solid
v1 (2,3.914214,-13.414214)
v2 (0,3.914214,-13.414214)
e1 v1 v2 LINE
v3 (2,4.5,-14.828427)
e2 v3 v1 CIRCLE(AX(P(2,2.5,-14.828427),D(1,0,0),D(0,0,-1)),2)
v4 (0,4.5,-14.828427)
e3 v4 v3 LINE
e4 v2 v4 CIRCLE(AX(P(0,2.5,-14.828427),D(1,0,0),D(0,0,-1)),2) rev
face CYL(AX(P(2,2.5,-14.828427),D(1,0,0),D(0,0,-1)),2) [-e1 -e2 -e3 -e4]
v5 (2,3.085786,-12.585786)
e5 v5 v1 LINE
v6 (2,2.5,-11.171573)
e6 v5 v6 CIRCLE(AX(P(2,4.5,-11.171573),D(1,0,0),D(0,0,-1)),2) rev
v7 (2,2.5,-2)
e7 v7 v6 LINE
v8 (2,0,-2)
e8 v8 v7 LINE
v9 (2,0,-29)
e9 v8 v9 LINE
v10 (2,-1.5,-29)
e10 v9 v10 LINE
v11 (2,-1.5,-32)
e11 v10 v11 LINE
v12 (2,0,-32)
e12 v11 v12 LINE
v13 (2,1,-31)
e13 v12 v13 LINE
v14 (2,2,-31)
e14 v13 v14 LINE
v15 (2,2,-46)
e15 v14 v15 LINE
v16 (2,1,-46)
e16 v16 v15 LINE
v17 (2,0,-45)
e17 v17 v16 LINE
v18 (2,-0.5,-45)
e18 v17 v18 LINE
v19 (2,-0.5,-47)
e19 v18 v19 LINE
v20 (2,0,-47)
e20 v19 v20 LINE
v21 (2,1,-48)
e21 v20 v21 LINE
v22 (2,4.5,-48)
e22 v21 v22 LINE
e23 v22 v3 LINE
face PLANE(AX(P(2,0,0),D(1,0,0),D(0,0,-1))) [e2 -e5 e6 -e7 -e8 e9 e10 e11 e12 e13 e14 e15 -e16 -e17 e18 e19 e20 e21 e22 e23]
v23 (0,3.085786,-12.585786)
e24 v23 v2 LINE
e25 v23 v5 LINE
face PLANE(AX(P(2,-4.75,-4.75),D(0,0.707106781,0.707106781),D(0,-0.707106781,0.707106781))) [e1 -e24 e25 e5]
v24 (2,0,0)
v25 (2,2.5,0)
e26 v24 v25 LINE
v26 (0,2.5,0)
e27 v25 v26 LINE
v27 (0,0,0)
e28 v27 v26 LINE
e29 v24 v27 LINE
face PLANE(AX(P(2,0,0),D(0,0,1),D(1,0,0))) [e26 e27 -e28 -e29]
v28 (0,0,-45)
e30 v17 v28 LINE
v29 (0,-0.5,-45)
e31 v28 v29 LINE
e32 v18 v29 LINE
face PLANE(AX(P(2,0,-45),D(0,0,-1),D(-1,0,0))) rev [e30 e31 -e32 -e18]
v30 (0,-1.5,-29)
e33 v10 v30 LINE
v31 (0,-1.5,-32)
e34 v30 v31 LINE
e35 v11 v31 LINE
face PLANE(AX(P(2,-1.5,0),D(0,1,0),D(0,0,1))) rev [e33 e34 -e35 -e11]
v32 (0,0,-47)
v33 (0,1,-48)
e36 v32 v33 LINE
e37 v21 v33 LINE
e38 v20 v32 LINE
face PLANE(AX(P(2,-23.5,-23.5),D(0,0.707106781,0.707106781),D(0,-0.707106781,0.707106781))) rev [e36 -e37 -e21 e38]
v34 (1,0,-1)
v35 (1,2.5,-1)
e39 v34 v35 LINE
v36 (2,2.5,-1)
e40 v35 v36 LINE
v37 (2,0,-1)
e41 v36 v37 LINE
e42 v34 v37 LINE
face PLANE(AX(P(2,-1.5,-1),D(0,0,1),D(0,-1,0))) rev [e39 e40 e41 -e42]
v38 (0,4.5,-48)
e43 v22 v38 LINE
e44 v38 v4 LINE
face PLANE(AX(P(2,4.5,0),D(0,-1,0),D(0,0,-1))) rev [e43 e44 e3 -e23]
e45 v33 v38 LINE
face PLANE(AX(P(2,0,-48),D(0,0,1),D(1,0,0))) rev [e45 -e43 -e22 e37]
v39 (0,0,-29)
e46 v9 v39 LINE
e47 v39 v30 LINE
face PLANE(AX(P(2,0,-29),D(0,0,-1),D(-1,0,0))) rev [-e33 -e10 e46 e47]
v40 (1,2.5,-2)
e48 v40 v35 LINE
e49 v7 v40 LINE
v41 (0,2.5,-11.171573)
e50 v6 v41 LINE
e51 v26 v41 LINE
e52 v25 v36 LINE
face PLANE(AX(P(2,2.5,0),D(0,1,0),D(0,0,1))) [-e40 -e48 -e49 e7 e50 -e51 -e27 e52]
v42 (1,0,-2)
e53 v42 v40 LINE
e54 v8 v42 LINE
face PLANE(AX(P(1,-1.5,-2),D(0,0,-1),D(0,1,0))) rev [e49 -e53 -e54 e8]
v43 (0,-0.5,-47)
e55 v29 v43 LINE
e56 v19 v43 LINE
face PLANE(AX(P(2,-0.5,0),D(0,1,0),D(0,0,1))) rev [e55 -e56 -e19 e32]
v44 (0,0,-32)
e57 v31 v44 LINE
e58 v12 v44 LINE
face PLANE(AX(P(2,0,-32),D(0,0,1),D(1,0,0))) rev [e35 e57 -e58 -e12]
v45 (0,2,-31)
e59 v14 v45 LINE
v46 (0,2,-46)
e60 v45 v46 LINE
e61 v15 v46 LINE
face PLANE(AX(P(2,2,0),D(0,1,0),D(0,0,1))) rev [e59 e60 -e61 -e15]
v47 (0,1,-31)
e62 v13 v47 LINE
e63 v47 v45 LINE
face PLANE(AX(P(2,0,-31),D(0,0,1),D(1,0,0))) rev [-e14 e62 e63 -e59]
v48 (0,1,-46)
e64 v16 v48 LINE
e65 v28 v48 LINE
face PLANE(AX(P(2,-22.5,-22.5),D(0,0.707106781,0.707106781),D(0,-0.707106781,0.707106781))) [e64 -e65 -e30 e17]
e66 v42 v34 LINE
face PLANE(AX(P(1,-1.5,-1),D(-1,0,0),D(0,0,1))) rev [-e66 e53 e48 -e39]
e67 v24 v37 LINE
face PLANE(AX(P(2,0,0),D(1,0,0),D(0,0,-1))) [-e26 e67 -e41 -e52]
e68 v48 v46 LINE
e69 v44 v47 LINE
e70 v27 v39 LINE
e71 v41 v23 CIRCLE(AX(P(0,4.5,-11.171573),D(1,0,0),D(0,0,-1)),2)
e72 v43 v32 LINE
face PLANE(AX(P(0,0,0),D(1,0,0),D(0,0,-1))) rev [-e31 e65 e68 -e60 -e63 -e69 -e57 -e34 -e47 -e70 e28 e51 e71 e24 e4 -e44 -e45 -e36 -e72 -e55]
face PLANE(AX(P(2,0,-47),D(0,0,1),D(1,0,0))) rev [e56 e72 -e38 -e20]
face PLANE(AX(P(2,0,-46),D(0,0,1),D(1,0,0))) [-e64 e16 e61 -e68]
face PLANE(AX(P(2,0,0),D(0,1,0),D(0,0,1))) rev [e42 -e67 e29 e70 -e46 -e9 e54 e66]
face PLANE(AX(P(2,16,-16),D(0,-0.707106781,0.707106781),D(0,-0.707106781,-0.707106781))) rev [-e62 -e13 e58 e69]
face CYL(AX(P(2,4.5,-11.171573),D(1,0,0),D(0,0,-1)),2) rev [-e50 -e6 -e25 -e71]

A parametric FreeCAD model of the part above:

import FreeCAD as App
import Part
import Sketcher


def edges_at(feature, points):
    """Names of the edges that pass closest to the given points."""
    edges = feature.Shape.Edges
    near = lambda p: min(range(len(edges)), key=lambda i: edges[i].distToShape(Part.Vertex(*p))[0])
    return sorted({f"Edge{near(p) + 1}" for p in points})

doc = App.newDocument("Part")
body = doc.addObject("PartDesign::Body", "Body")

# Sketch on YZ plane
sketch1 = body.newObject("Sketcher::SketchObject", "Sketch")
sketch1.AttachmentSupport = (doc.getObject("YZ_Plane"), [""])
sketch1.MapMode = "FlatFace"
sketch1.addGeometry([
    Part.LineSegment(App.Vector(1, -48, 0), App.Vector(4.5, -48, 0)),  # 0
    Part.LineSegment(App.Vector(4.5, -48, 0), App.Vector(4.5, -14, 0)),  # 1
    Part.LineSegment(App.Vector(4.5, -14, 0), App.Vector(2.5, -12, 0)),  # 2
    Part.LineSegment(App.Vector(2.5, -12, 0), App.Vector(2.5, 0, 0)),  # 3
    Part.LineSegment(App.Vector(2.5, 0, 0), App.Vector(0, 0, 0)),  # 4
    Part.LineSegment(App.Vector(0, 0, 0), App.Vector(0, -29, 0)),  # 5
    Part.LineSegment(App.Vector(0, -29, 0), App.Vector(-1.5, -29, 0)),  # 6
    Part.LineSegment(App.Vector(-1.5, -29, 0), App.Vector(-1.5, -32, 0)),  # 7
    Part.LineSegment(App.Vector(-1.5, -32, 0), App.Vector(0, -32, 0)),  # 8
    Part.LineSegment(App.Vector(0, -32, 0), App.Vector(1, -31, 0)),  # 9
    Part.LineSegment(App.Vector(1, -31, 0), App.Vector(2, -31, 0)),  # 10
    Part.LineSegment(App.Vector(2, -31, 0), App.Vector(2, -46, 0)),  # 11
    Part.LineSegment(App.Vector(2, -46, 0), App.Vector(1, -46, 0)),  # 12
    Part.LineSegment(App.Vector(1, -46, 0), App.Vector(0, -45, 0)),  # 13
    Part.LineSegment(App.Vector(0, -45, 0), App.Vector(-0.5, -45, 0)),  # 14
    Part.LineSegment(App.Vector(-0.5, -45, 0), App.Vector(-0.5, -47, 0)),  # 15
    Part.LineSegment(App.Vector(-0.5, -47, 0), App.Vector(0, -47, 0)),  # 16
    Part.LineSegment(App.Vector(0, -47, 0), App.Vector(1, -48, 0)),  # 17
], False)
sketch1.addConstraint([
    Sketcher.Constraint("Coincident", 0, 2, 1, 1),
    Sketcher.Constraint("Coincident", 1, 2, 2, 1),
    Sketcher.Constraint("Coincident", 2, 2, 3, 1),
    Sketcher.Constraint("Coincident", 3, 2, 4, 1),
    Sketcher.Constraint("Coincident", 4, 2, 5, 1),
    Sketcher.Constraint("Coincident", 5, 2, 6, 1),
    Sketcher.Constraint("Coincident", 6, 2, 7, 1),
    Sketcher.Constraint("Coincident", 7, 2, 8, 1),
    Sketcher.Constraint("Coincident", 8, 2, 9, 1),
    Sketcher.Constraint("Coincident", 9, 2, 10, 1),
    Sketcher.Constraint("Coincident", 10, 2, 11, 1),
    Sketcher.Constraint("Coincident", 11, 2, 12, 1),
    Sketcher.Constraint("Coincident", 12, 2, 13, 1),
    Sketcher.Constraint("Coincident", 13, 2, 14, 1),
    Sketcher.Constraint("Coincident", 14, 2, 15, 1),
    Sketcher.Constraint("Coincident", 15, 2, 16, 1),
    Sketcher.Constraint("Coincident", 16, 2, 17, 1),
    Sketcher.Constraint("Coincident", 17, 2, 0, 1),
    Sketcher.Constraint("Horizontal", 0),
    Sketcher.Constraint("Vertical", 1),
    Sketcher.Constraint("Vertical", 3),
    Sketcher.Constraint("Horizontal", 4),
    Sketcher.Constraint("Vertical", 5),
    Sketcher.Constraint("Horizontal", 6),
    Sketcher.Constraint("Vertical", 7),
    Sketcher.Constraint("Horizontal", 8),
    Sketcher.Constraint("Horizontal", 10),
    Sketcher.Constraint("Vertical", 11),
    Sketcher.Constraint("Horizontal", 12),
    Sketcher.Constraint("Horizontal", 14),
    Sketcher.Constraint("Vertical", 15),
    Sketcher.Constraint("Horizontal", 16),
    Sketcher.Constraint("Coincident", 4, 2, -1, 1),
    Sketcher.Constraint("PointOnObject", 8, 2, -2),
    Sketcher.Constraint("PointOnObject", 13, 2, -2),
    Sketcher.Constraint("PointOnObject", 16, 2, -2),
    Sketcher.Constraint("Perpendicular", 2, 9),
    Sketcher.Constraint("Perpendicular", 9, 13),
    Sketcher.Constraint("Parallel", 13, 17),
    Sketcher.Constraint("Vertical", 9, 2, 12, 2),
    Sketcher.Constraint("Vertical", 12, 2, 17, 2),
    Sketcher.Constraint("Equal", 9, 13),
    Sketcher.Constraint("DistanceX", 10, 1, 10, 2, 1.0),
    Sketcher.Constraint("DistanceY", 1, 1, 1, 2, 34.0),
    Sketcher.Constraint("DistanceY", 3, 1, 3, 2, 12.0),
    Sketcher.Constraint("DistanceY", 5, 2, 5, 1, 29.0),
    Sketcher.Constraint("DistanceY", 7, 2, 7, 1, 3.0),
    Sketcher.Constraint("DistanceY", 11, 2, 11, 1, 15.0),
    Sketcher.Constraint("DistanceY", 15, 2, 15, 1, 2.0),
    Sketcher.Constraint("DistanceX", 0, 1, 0, 2, 3.5),
    Sketcher.Constraint("DistanceX", 4, 2, 4, 1, 2.5),
    Sketcher.Constraint("DistanceX", 6, 2, 6, 1, 1.5),
    Sketcher.Constraint("DistanceX", 14, 2, 14, 1, 0.5),
])
pad1 = body.newObject("PartDesign::Pad", "Pad")
pad1.Profile = sketch1
pad1.Length = 2
doc.recompute()

fillet = body.newObject("PartDesign::Fillet", "Fillet")
fillet.Base = (pad1, edges_at(pad1, [(1, 2.5, -12), (1, 4.5, -14)]))
fillet.Radius = 2

# Sketch on XZ plane
sketch2 = body.newObject("Sketcher::SketchObject", "Sketch001")
sketch2.AttachmentSupport = (doc.getObject("XZ_Plane"), [""])
sketch2.MapMode = "FlatFace"
sketch2.AttachmentOffset = App.Placement(App.Vector(0, 0, -2.5), App.Rotation())
sketch2.addGeometry([
    Part.LineSegment(App.Vector(1, -2, 0), App.Vector(1, -1, 0)),
    Part.LineSegment(App.Vector(1, -1, 0), App.Vector(2, -1, 0)),
    Part.LineSegment(App.Vector(2, -1, 0), App.Vector(2, -2, 0)),
    Part.LineSegment(App.Vector(2, -2, 0), App.Vector(1, -2, 0)),
], False)
sketch2.addConstraint([
    Sketcher.Constraint("Coincident", 0, 2, 1, 1),
    Sketcher.Constraint("Coincident", 1, 2, 2, 1),
    Sketcher.Constraint("Coincident", 2, 2, 3, 1),
    Sketcher.Constraint("Coincident", 3, 2, 0, 1),
    Sketcher.Constraint("Vertical", 0),
    Sketcher.Constraint("Horizontal", 1),
    Sketcher.Constraint("Vertical", 2),
    Sketcher.Constraint("Horizontal", 3),
    Sketcher.Constraint("Equal", 3, 0),
    Sketcher.Constraint("DistanceX", 1, 1, 1, 2, 1.0),
    Sketcher.Constraint("DistanceX", -1, 1, 0, 2, 1.0),
    Sketcher.Constraint("DistanceY", 0, 2, -1, 1, 1.0),
])
pocket1 = body.newObject("PartDesign::Pocket", "Pocket")
pocket1.Profile = sketch2
pocket1.Type = "ThroughAll"
pocket1.Reversed = True

doc.recompute()
